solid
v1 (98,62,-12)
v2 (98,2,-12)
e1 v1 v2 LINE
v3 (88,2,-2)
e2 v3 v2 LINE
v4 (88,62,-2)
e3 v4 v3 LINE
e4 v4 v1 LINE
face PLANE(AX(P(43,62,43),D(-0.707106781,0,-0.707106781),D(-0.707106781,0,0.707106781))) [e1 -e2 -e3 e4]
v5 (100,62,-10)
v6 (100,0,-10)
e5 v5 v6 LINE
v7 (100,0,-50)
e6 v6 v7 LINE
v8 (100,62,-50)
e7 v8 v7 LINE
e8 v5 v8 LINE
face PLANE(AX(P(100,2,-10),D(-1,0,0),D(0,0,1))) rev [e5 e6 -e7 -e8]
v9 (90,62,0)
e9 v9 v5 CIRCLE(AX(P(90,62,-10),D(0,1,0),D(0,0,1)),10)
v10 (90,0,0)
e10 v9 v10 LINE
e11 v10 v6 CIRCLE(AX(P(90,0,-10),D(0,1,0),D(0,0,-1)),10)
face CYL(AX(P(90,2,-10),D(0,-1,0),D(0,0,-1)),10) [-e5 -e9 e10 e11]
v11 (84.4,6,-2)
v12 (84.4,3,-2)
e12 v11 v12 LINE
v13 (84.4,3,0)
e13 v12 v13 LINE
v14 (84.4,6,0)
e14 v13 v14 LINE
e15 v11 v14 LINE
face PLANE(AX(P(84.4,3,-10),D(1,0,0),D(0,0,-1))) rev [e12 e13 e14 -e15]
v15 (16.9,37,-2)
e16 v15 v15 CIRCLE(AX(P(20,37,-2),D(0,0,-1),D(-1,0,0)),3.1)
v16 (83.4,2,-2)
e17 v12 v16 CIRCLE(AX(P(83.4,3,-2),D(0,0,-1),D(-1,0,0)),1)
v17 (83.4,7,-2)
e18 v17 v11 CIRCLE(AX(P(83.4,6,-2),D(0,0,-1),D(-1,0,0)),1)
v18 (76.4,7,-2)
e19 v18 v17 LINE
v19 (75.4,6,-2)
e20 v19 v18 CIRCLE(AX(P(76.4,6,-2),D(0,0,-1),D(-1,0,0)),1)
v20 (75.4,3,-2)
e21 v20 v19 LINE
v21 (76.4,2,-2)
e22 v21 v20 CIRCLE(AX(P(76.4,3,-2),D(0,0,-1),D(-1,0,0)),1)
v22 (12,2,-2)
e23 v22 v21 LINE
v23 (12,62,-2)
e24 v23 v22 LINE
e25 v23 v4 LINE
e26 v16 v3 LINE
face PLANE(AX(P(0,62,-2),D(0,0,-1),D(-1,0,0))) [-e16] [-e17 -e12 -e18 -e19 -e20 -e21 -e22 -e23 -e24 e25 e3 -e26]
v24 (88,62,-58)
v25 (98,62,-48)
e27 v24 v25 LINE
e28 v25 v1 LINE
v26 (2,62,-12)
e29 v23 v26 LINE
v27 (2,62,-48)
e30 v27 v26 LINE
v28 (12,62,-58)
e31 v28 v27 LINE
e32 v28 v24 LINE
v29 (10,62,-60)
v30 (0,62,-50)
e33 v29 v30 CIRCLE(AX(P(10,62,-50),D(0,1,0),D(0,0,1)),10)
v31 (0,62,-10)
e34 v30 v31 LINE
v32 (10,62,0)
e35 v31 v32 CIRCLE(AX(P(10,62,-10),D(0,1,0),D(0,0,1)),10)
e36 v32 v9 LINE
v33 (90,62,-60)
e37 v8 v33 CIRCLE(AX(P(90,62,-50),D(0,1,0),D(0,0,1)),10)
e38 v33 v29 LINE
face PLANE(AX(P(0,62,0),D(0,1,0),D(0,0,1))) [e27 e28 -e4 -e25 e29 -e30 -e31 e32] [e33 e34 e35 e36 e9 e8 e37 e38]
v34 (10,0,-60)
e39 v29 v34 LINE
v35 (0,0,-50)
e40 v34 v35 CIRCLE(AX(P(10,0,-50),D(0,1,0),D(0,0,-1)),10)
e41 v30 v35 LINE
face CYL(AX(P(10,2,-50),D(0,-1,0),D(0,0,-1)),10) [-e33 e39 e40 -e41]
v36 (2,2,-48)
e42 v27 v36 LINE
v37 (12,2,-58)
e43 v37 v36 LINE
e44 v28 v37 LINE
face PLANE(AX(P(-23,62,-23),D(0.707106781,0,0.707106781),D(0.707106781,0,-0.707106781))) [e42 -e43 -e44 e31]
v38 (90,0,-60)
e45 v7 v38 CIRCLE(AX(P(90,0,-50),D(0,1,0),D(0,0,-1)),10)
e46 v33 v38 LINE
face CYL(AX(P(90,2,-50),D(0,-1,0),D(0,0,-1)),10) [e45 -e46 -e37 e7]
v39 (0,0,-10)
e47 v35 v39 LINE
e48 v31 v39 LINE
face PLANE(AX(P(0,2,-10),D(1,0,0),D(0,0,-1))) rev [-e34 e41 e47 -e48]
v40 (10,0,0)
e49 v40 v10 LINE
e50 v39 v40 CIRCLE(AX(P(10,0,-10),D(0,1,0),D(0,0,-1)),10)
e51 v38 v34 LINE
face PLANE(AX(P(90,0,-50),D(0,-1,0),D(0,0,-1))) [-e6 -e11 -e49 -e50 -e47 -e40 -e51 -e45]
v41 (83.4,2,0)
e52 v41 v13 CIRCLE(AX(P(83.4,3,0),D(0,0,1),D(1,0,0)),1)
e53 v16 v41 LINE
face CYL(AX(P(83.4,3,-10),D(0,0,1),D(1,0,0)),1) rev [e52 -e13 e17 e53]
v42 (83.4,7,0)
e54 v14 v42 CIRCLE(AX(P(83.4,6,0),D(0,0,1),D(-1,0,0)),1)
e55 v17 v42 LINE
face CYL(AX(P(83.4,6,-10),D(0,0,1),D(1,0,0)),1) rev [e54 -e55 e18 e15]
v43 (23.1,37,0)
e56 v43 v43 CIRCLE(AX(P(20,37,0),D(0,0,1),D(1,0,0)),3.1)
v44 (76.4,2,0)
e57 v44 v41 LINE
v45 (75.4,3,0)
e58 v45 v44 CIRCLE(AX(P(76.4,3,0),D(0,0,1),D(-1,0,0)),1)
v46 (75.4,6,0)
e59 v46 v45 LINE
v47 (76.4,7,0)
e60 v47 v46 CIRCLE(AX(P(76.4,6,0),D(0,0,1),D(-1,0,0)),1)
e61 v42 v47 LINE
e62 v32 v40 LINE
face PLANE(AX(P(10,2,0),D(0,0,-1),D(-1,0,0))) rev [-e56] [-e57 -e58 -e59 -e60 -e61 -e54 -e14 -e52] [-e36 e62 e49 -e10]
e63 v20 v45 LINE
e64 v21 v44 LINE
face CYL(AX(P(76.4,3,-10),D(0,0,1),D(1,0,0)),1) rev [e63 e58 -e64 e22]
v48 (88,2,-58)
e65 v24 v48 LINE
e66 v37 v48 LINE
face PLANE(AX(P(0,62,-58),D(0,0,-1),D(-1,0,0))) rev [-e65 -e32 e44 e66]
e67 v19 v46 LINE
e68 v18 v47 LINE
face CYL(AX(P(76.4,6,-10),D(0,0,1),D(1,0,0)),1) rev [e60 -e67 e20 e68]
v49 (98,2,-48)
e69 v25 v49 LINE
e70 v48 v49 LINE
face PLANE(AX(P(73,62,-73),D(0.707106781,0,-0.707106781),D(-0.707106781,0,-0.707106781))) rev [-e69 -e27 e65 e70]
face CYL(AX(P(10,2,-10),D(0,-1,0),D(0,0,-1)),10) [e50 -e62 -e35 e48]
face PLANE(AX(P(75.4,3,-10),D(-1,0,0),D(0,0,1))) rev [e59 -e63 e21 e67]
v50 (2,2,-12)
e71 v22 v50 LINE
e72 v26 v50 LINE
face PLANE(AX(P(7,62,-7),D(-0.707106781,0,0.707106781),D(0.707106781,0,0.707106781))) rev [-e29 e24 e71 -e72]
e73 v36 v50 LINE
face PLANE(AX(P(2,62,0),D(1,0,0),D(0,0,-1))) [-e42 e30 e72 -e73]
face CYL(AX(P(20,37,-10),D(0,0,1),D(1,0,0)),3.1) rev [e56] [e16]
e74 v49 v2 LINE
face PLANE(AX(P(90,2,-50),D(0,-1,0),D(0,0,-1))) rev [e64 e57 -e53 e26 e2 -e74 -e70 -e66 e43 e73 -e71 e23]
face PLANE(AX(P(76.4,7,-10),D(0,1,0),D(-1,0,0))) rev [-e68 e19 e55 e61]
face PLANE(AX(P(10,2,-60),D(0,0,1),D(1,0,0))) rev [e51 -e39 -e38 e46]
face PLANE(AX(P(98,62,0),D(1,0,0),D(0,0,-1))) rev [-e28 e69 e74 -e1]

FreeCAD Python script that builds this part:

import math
import FreeCAD as App
import Part
import Sketcher

V = App.Vector

doc = App.newDocument("Part")
params = doc.addObject("Spreadsheet::Sheet", "Params")
for row, (alias, value) in enumerate([
    ("sketch1_radius", "10 mm"),
    ("sketch1_width", "80 mm"),
    ("sketch1_height", "40 mm"),
    ("pad1_length", "2 mm"),
    ("sketch2_radius", "10 mm"),
    ("sketch2_width", "80 mm"),
    ("sketch2_width2", "76 mm"),
    ("sketch2_height", "40 mm"),
    ("sketch2_height2", "36 mm"),
    ("pad2_length", "60 mm"),
    ("sketch3_radius", "1 mm"),
    ("sketch3_diameter", "6.2 mm"),
    ("sketch3_width", "7 mm"),
    ("sketch3_height", "3 mm"),
    ("pocket1_length", "10 mm"),
], start=1):
    params.set(f"A{row}", alias)
    params.set(f"B{row}", "=" + value)
    params.setAlias(f"B{row}", alias)

body = doc.addObject("PartDesign::Body", "Body")

sketch1 = doc.addObject("Sketcher::SketchObject", "Sketch")
body.addObject(sketch1)
sketch1.AttachmentSupport = (doc.XZ_Plane, [""])
sketch1.MapMode = "FlatFace"
sketch1.addGeometry(Part.LineSegment(V(10, 0, 0), V(90, 0, 0)), False)
sketch1.addGeometry(Part.ArcOfCircle(Part.Circle(V(90, -10, 0), V(0, 0, 1), 10), math.radians(0), math.radians(90)), False)
sketch1.addGeometry(Part.LineSegment(V(100, -10, 0), V(100, -50, 0)), False)
sketch1.addGeometry(Part.ArcOfCircle(Part.Circle(V(90, -50, 0), V(0, 0, 1), 10), math.radians(-90), math.radians(0)), False)
sketch1.addGeometry(Part.LineSegment(V(90, -60, 0), V(10, -60, 0)), False)
sketch1.addGeometry(Part.ArcOfCircle(Part.Circle(V(10, -50, 0), V(0, 0, 1), 10), math.radians(180), math.radians(270)), False)
sketch1.addGeometry(Part.LineSegment(V(0, -50, 0), V(0, -10, 0)), False)
sketch1.addGeometry(Part.ArcOfCircle(Part.Circle(V(10, -10, 0), V(0, 0, 1), 10), math.radians(90), math.radians(180)), False)
sketch1.addConstraint(Sketcher.Constraint("Tangent", 0, 2, 1, 2))
sketch1.addConstraint(Sketcher.Constraint("Tangent", 1, 1, 2, 1))
sketch1.addConstraint(Sketcher.Constraint("Tangent", 2, 2, 3, 2))
sketch1.addConstraint(Sketcher.Constraint("Tangent", 3, 1, 4, 1))
sketch1.addConstraint(Sketcher.Constraint("Tangent", 4, 2, 5, 2))
sketch1.addConstraint(Sketcher.Constraint("Tangent", 5, 1, 6, 1))
sketch1.addConstraint(Sketcher.Constraint("Tangent", 6, 2, 7, 2))
sketch1.addConstraint(Sketcher.Constraint("Tangent", 7, 1, 0, 1))
sketch1.addConstraint(Sketcher.Constraint("Horizontal", 0))
sketch1.addConstraint(Sketcher.Constraint("Vertical", 2))
sketch1.addConstraint(Sketcher.Constraint("Horizontal", 4))
sketch1.addConstraint(Sketcher.Constraint("Vertical", 6))
sketch1.addConstraint(Sketcher.Constraint("Equal", 1, 3))
sketch1.addConstraint(Sketcher.Constraint("Equal", 3, 5))
sketch1.addConstraint(Sketcher.Constraint("Equal", 5, 7))
sketch1.addConstraint(Sketcher.Constraint("PointOnObject", 0, 2, -1))
sketch1.addConstraint(Sketcher.Constraint("PointOnObject", 5, 1, -2))
sketch1.addConstraint(Sketcher.Constraint("Radius", 1, 10.0))
sketch1.addConstraint(Sketcher.Constraint("DistanceX", 0, 1, 0, 2, 80.0))
sketch1.addConstraint(Sketcher.Constraint("DistanceY", 2, 2, 2, 1, 40.0))
sketch1.setExpression("Constraints[17]", "Params.sketch1_radius")
sketch1.setExpression("Constraints[18]", "Params.sketch1_width")
sketch1.setExpression("Constraints[19]", "Params.sketch1_height")
pad1 = doc.addObject("PartDesign::Pad", "Pad")
body.addObject(pad1)
pad1.Profile = sketch1
pad1.setExpression("Length", "Params.pad1_length")
pad1.Reversed = True

sketch2 = doc.addObject("Sketcher::SketchObject", "Sketch001")
body.addObject(sketch2)
sketch2.AttachmentSupport = (doc.XZ_Plane, [""])
sketch2.MapMode = "FlatFace"
sketch2.AttachmentOffset = App.Placement(V(0, 0, -2), App.Rotation())
sketch2.addGeometry(Part.LineSegment(V(100, -10, 0), V(100, -50, 0)), False)
sketch2.addGeometry(Part.ArcOfCircle(Part.Circle(V(90, -50, 0), V(0, 0, 1), 10), math.radians(-90), math.radians(0)), False)
sketch2.addGeometry(Part.LineSegment(V(90, -60, 0), V(10, -60, 0)), False)
sketch2.addGeometry(Part.ArcOfCircle(Part.Circle(V(10, -50, 0), V(0, 0, 1), 10), math.radians(180), math.radians(270)), False)
sketch2.addGeometry(Part.LineSegment(V(0, -50, 0), V(0, -10, 0)), False)
sketch2.addGeometry(Part.ArcOfCircle(Part.Circle(V(10, -10, 0), V(0, 0, 1), 10), math.radians(90), math.radians(180)), False)
sketch2.addGeometry(Part.LineSegment(V(10, 0, 0), V(90, 0, 0)), False)
sketch2.addGeometry(Part.ArcOfCircle(Part.Circle(V(90, -10, 0), V(0, 0, 1), 10), math.radians(0), math.radians(90)), False)
sketch2.addGeometry(Part.LineSegment(V(88, -2, 0), V(12, -2, 0)), False)
sketch2.addGeometry(Part.LineSegment(V(12, -2, 0), V(2, -12, 0)), False)
sketch2.addGeometry(Part.LineSegment(V(2, -12, 0), V(2, -48, 0)), False)
sketch2.addGeometry(Part.LineSegment(V(2, -48, 0), V(12, -58, 0)), False)
sketch2.addGeometry(Part.LineSegment(V(12, -58, 0), V(88, -58, 0)), False)
sketch2.addGeometry(Part.LineSegment(V(88, -58, 0), V(98, -48, 0)), False)
sketch2.addGeometry(Part.LineSegment(V(98, -48, 0), V(98, -12, 0)), False)
sketch2.addGeometry(Part.LineSegment(V(98, -12, 0), V(88, -2, 0)), False)
sketch2.addConstraint(Sketcher.Constraint("Tangent", 0, 2, 1, 2))
sketch2.addConstraint(Sketcher.Constraint("Tangent", 1, 1, 2, 1))
sketch2.addConstraint(Sketcher.Constraint("Tangent", 2, 2, 3, 2))
sketch2.addConstraint(Sketcher.Constraint("Tangent", 3, 1, 4, 1))
sketch2.addConstraint(Sketcher.Constraint("Tangent", 4, 2, 5, 2))
sketch2.addConstraint(Sketcher.Constraint("Tangent", 5, 1, 6, 1))
sketch2.addConstraint(Sketcher.Constraint("Tangent", 6, 2, 7, 2))
sketch2.addConstraint(Sketcher.Constraint("Tangent", 7, 1, 0, 1))
sketch2.addConstraint(Sketcher.Constraint("Coincident", 8, 2, 9, 1))
sketch2.addConstraint(Sketcher.Constraint("Coincident", 9, 2, 10, 1))
sketch2.addConstraint(Sketcher.Constraint("Coincident", 10, 2, 11, 1))
sketch2.addConstraint(Sketcher.Constraint("Coincident", 11, 2, 12, 1))
sketch2.addConstraint(Sketcher.Constraint("Coincident", 12, 2, 13, 1))
sketch2.addConstraint(Sketcher.Constraint("Coincident", 13, 2, 14, 1))
sketch2.addConstraint(Sketcher.Constraint("Coincident", 14, 2, 15, 1))
sketch2.addConstraint(Sketcher.Constraint("Coincident", 15, 2, 8, 1))
sketch2.addConstraint(Sketcher.Constraint("Vertical", 0))
sketch2.addConstraint(Sketcher.Constraint("Horizontal", 2))
sketch2.addConstraint(Sketcher.Constraint("Vertical", 4))
sketch2.addConstraint(Sketcher.Constraint("Horizontal", 6))
sketch2.addConstraint(Sketcher.Constraint("Horizontal", 8))
sketch2.addConstraint(Sketcher.Constraint("Vertical", 10))
sketch2.addConstraint(Sketcher.Constraint("Horizontal", 12))
sketch2.addConstraint(Sketcher.Constraint("Vertical", 14))
sketch2.addConstraint(Sketcher.Constraint("Equal", 1, 3))
sketch2.addConstraint(Sketcher.Constraint("Equal", 3, 5))
sketch2.addConstraint(Sketcher.Constraint("Equal", 5, 7))
sketch2.addConstraint(Sketcher.Constraint("PointOnObject", 3, 1, -2))
sketch2.addConstraint(Sketcher.Constraint("PointOnObject", 5, 1, -1))
sketch2.addConstraint(Sketcher.Constraint("Perpendicular", 9, 11))
sketch2.addConstraint(Sketcher.Constraint("Perpendicular", 11, 13))
sketch2.addConstraint(Sketcher.Constraint("Perpendicular", 13, 15))
sketch2.addConstraint(Sketcher.Constraint("Horizontal", 10, 2, 13, 2))
sketch2.addConstraint(Sketcher.Constraint("Horizontal", 9, 2, 14, 2))
sketch2.addConstraint(Sketcher.Constraint("Vertical", 8, 2, 11, 2))
sketch2.addConstraint(Sketcher.Constraint("Vertical", 12, 2, 15, 2))
sketch2.addConstraint(Sketcher.Constraint("Radius", 1, 10.0))
sketch2.addConstraint(Sketcher.Constraint("DistanceX", 2, 2, 2, 1, 80.0))
sketch2.addConstraint(Sketcher.Constraint("DistanceX", 8, 2, 8, 1, 76.0))
sketch2.addConstraint(Sketcher.Constraint("DistanceY", 0, 2, 0, 1, 40.0))
sketch2.addConstraint(Sketcher.Constraint("DistanceY", 10, 2, 10, 1, 36.0))
sketch2.addConstraint(Sketcher.Constraint("DistanceX", -1, 1, 8, 2, 12.0))
sketch2.addConstraint(Sketcher.Constraint("DistanceY", 8, 2, -1, 1, 2.0))
sketch2.addConstraint(Sketcher.Constraint("DistanceX", -1, 1, 9, 2, 2.0))
sketch2.setExpression("Constraints[36]", "Params.sketch2_radius")
sketch2.setExpression("Constraints[37]", "Params.sketch2_width")
sketch2.setExpression("Constraints[38]", "Params.sketch2_width2")
sketch2.setExpression("Constraints[39]", "Params.sketch2_height")
sketch2.setExpression("Constraints[40]", "Params.sketch2_height2")
pad2 = doc.addObject("PartDesign::Pad", "Pad001")
body.addObject(pad2)
pad2.Profile = sketch2
pad2.setExpression("Length", "Params.pad2_length")
pad2.Reversed = True

sketch3 = doc.addObject("Sketcher::SketchObject", "Sketch002")
body.addObject(sketch3)
sketch3.AttachmentSupport = (doc.XY_Plane, [""])
sketch3.MapMode = "FlatFace"
sketch3.addGeometry(Part.Circle(V(20, 37, 0), V(0, 0, 1), 3.1), False)
sketch3.addGeometry(Part.LineSegment(V(76.4, 2, 0), V(83.4, 2, 0)), False)
sketch3.addGeometry(Part.ArcOfCircle(Part.Circle(V(83.4, 3, 0), V(0, 0, 1), 1), math.radians(-90), math.radians(0)), False)
sketch3.addGeometry(Part.LineSegment(V(84.4, 3, 0), V(84.4, 6, 0)), False)
sketch3.addGeometry(Part.ArcOfCircle(Part.Circle(V(83.4, 6, 0), V(0, 0, 1), 1), math.radians(0), math.radians(90)), False)
sketch3.addGeometry(Part.LineSegment(V(83.4, 7, 0), V(76.4, 7, 0)), False)
sketch3.addGeometry(Part.ArcOfCircle(Part.Circle(V(76.4, 6, 0), V(0, 0, 1), 1), math.radians(90), math.radians(180)), False)
sketch3.addGeometry(Part.LineSegment(V(75.4, 6, 0), V(75.4, 3, 0)), False)
sketch3.addGeometry(Part.ArcOfCircle(Part.Circle(V(76.4, 3, 0), V(0, 0, 1), 1), math.radians(-180), math.radians(-90)), False)
sketch3.addConstraint(Sketcher.Constraint("Tangent", 1, 2, 2, 1))
sketch3.addConstraint(Sketcher.Constraint("Tangent", 2, 2, 3, 1))
sketch3.addConstraint(Sketcher.Constraint("Tangent", 3, 2, 4, 1))
sketch3.addConstraint(Sketcher.Constraint("Tangent", 4, 2, 5, 1))
sketch3.addConstraint(Sketcher.Constraint("Tangent", 5, 2, 6, 1))
sketch3.addConstraint(Sketcher.Constraint("Tangent", 6, 2, 7, 1))
sketch3.addConstraint(Sketcher.Constraint("Tangent", 7, 2, 8, 1))
sketch3.addConstraint(Sketcher.Constraint("Tangent", 8, 2, 1, 1))
sketch3.addConstraint(Sketcher.Constraint("Horizontal", 1))
sketch3.addConstraint(Sketcher.Constraint("Vertical", 3))
sketch3.addConstraint(Sketcher.Constraint("Horizontal", 5))
sketch3.addConstraint(Sketcher.Constraint("Vertical", 7))
sketch3.addConstraint(Sketcher.Constraint("Equal", 2, 4))
sketch3.addConstraint(Sketcher.Constraint("Equal", 4, 6))
sketch3.addConstraint(Sketcher.Constraint("Equal", 6, 8))
sketch3.addConstraint(Sketcher.Constraint("Radius", 2, 1.0))
sketch3.addConstraint(Sketcher.Constraint("Diameter", 0, 6.2))
sketch3.addConstraint(Sketcher.Constraint("DistanceX", 1, 1, 1, 2, 7.0))
sketch3.addConstraint(Sketcher.Constraint("DistanceY", 3, 1, 3, 2, 3.0))
sketch3.addConstraint(Sketcher.Constraint("DistanceX", -1, 1, 0, 3, 20.0))
sketch3.addConstraint(Sketcher.Constraint("DistanceY", -1, 1, 0, 3, 37.0))
sketch3.addConstraint(Sketcher.Constraint("DistanceY", -1, 1, 2, 3, 3.0))
sketch3.addConstraint(Sketcher.Constraint("DistanceX", -1, 1, 2, 3, 83.4))
sketch3.setExpression("Constraints[15]", "Params.sketch3_radius")
sketch3.setExpression("Constraints[16]", "Params.sketch3_diameter")
sketch3.setExpression("Constraints[17]", "Params.sketch3_width")
sketch3.setExpression("Constraints[18]", "Params.sketch3_height")
pocket1 = doc.addObject("PartDesign::Pocket", "Pocket")
body.addObject(pocket1)
pocket1.Profile = sketch3
pocket1.setExpression("Length", "Params.pocket1_length")

doc.recompute()
